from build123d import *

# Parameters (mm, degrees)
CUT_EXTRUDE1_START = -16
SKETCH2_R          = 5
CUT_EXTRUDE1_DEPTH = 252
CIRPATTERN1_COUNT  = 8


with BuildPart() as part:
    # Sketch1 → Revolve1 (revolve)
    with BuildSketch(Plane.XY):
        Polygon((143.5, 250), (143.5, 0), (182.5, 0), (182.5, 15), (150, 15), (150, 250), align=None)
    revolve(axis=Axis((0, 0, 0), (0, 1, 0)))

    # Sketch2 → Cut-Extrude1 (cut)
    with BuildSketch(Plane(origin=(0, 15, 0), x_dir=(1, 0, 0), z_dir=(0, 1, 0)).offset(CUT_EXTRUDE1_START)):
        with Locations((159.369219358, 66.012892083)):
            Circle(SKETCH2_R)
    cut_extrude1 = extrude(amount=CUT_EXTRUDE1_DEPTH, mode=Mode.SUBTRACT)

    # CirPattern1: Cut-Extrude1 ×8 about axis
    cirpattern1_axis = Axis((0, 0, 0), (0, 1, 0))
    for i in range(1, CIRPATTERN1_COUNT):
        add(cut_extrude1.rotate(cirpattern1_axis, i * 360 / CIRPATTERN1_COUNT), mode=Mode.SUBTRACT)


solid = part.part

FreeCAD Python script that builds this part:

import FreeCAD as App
import Part
import Sketcher
from FreeCAD import Vector
Q = App.Units.Quantity

doc = App.newDocument("Part")
body = doc.addObject("PartDesign::Body", "Body")

# Sketch on XY plane
sketch1 = doc.addObject("Sketcher::SketchObject", "Sketch")
body.addObject(sketch1)
sketch1.AttachmentSupport = (doc.XY_Plane, [""])
sketch1.MapMode = "FlatFace"
sketch1.addGeometry([
    Part.LineSegment(Vector(143.5, 250, 0), Vector(143.5, 0, 0)),  # 0
    Part.LineSegment(Vector(143.5, 0, 0), Vector(182.5, 0, 0)),  # 1
    Part.LineSegment(Vector(182.5, 0, 0), Vector(182.5, 15, 0)),  # 2
    Part.LineSegment(Vector(182.5, 15, 0), Vector(150, 15, 0)),  # 3
    Part.LineSegment(Vector(150, 15, 0), Vector(150, 250, 0)),  # 4
    Part.LineSegment(Vector(150, 250, 0), Vector(143.5, 250, 0)),  # 5
], False)
sketch1.addConstraint([
    Sketcher.Constraint("Coincident", 0, 2, 1, 1),
    Sketcher.Constraint("Coincident", 1, 2, 2, 1),
    Sketcher.Constraint("Coincident", 2, 2, 3, 1),
    Sketcher.Constraint("Coincident", 3, 2, 4, 1),
    Sketcher.Constraint("Coincident", 4, 2, 5, 1),
    Sketcher.Constraint("Coincident", 5, 2, 0, 1),
    Sketcher.Constraint("Vertical", 0),
    Sketcher.Constraint("Horizontal", 1),
    Sketcher.Constraint("Vertical", 2),
    Sketcher.Constraint("Horizontal", 3),
    Sketcher.Constraint("Vertical", 4),
    Sketcher.Constraint("Horizontal", 5),
    Sketcher.Constraint("PointOnObject", 0, 2, -1),
    Sketcher.Constraint("DistanceX", 1, 1, 1, 2, Q("39 mm")),
    Sketcher.Constraint("DistanceY", 0, 2, 0, 1, Q("250 mm")),
    Sketcher.Constraint("DistanceY", 2, 1, 2, 2, Q("15 mm")),
    Sketcher.Constraint("DistanceX", 3, 2, 3, 1, Q("32.5 mm")),
    Sketcher.Constraint("DistanceX", -1, 1, 3, 2, Q("150 mm")),
])
revolution = doc.addObject("PartDesign::Revolution", "Revolution")
body.addObject(revolution)
revolution.Profile = sketch1
revolution.ReferenceAxis = (sketch1, ["V_Axis"])
revolution.Angle = 360

# Sketch on XZ plane
sketch2 = doc.addObject("Sketcher::SketchObject", "Sketch001")
body.addObject(sketch2)
sketch2.AttachmentSupport = (doc.XZ_Plane, [""])
sketch2.MapMode = "FlatFace"
sketch2.AttachmentOffset = App.Placement(Vector(0, 0, 1), App.Rotation())
sketch2.addGeometry(Part.Circle(Vector(159.369219, -66.012892, 0), Vector(0, 0, 1), 5), False)
sketch2.addConstraint([
    Sketcher.Constraint("Diameter", 0, Q("10 mm")),
    Sketcher.Constraint("DistanceX", -1, 1, 0, 3, Q("159.369219 mm")),
    Sketcher.Constraint("DistanceY", 0, 3, -1, 1, Q("66.012892 mm")),
])
pocket1 = doc.addObject("PartDesign::Pocket", "Pocket")
body.addObject(pocket1)
pocket1.Profile = sketch2
pocket1.Length = 252
doc.recompute()

polarpattern = doc.addObject("PartDesign::PolarPattern", "PolarPattern")
body.addObject(polarpattern)
polarpattern.Originals = [pocket1]
polarpattern.Axis = (doc.Y_Axis, [""])
polarpattern.Angle = 360
polarpattern.Occurrences = 8
body.Tip = polarpattern

doc.recompute()
